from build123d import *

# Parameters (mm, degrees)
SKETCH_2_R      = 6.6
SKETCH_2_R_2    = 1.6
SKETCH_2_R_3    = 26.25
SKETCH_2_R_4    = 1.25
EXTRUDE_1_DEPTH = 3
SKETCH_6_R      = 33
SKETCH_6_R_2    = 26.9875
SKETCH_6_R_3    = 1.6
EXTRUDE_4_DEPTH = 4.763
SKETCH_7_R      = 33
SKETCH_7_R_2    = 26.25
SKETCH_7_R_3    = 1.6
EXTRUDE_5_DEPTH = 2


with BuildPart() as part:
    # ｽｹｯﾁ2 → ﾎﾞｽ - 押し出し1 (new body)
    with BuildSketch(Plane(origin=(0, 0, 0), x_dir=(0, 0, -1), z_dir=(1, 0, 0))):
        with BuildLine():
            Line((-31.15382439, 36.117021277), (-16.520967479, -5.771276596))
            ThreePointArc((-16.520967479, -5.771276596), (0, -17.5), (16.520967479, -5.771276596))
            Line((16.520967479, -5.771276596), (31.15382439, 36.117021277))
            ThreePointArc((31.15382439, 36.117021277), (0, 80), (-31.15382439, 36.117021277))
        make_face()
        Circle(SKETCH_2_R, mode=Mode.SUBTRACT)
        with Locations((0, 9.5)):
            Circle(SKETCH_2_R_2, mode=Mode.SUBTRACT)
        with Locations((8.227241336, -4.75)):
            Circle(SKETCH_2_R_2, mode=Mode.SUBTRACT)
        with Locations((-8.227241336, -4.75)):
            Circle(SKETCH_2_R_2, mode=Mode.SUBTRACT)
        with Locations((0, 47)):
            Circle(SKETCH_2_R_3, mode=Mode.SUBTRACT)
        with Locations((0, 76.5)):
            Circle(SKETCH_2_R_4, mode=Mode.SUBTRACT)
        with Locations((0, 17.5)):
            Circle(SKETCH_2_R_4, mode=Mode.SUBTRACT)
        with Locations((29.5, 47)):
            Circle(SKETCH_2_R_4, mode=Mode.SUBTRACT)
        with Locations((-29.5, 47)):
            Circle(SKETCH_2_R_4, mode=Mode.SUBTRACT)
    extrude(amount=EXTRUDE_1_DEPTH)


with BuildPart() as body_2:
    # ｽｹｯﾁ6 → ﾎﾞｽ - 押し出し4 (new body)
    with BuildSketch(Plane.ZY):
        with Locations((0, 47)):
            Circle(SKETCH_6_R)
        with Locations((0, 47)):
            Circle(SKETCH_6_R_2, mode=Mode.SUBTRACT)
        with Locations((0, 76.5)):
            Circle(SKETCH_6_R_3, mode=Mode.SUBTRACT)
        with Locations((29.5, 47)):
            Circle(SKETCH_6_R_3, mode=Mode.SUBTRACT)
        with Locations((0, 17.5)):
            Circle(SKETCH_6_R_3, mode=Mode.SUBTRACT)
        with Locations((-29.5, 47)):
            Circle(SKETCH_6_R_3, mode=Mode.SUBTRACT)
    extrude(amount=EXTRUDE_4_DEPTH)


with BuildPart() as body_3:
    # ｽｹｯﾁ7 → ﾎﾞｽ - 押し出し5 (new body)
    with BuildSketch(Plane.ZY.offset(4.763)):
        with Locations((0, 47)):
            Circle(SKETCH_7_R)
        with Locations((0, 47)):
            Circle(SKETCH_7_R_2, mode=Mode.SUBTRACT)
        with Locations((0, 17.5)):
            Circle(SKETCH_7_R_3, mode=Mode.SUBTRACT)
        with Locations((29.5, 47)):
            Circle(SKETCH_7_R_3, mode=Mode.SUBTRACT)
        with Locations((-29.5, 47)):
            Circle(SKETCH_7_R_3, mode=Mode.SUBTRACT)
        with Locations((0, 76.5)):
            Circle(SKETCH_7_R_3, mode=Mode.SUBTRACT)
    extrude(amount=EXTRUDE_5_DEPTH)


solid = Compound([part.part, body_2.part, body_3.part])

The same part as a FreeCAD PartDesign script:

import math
import FreeCAD as App
import Part
import Sketcher

V = App.Vector

doc = App.newDocument("Part")
body = doc.addObject("PartDesign::Body", "Body")

# Sketch on YZ plane
sketch1 = body.newObject("Sketcher::SketchObject", "Sketch")
sketch1.AttachmentSupport = (doc.getObject("YZ_Plane"), [""])
sketch1.MapMode = "FlatFace"
sketch1.addGeometry([
    Part.LineSegment(V(36.1, 31.2, 0), V(-5.8, 16.5, 0)),  # 0
    Part.ArcOfCircle(Part.Circle(V(0, 0, 0), V(0, 0, 1), 17.5), math.radians(109), math.radians(251)),  # 1
    Part.LineSegment(V(-5.8, -16.5, 0), V(36.1, -31.2, 0)),  # 2
    Part.ArcOfCircle(Part.Circle(V(47, 0, 0), V(0, 0, 1), 33), math.radians(-109), math.radians(109)),  # 3
    Part.Circle(V(-4.8, 8.2, 0), V(0, 0, 1), 1.6),  # 4
    Part.Circle(V(0, 0, 0), V(0, 0, 1), 6.6),  # 5
    Part.Circle(V(-4.8, -8.2, 0), V(0, 0, 1), 1.6),  # 6
    Part.Circle(V(9.5, 0, 0), V(0, 0, 1), 1.6),  # 7
    Part.Circle(V(17.5, 0, 0), V(0, 0, 1), 1.2),  # 8
    Part.Circle(V(47, 29.5, 0), V(0, 0, 1), 1.2),  # 9
    Part.Circle(V(47, 0, 0), V(0, 0, 1), 26.2),  # 10
    Part.Circle(V(47, -29.5, 0), V(0, 0, 1), 1.2),  # 11
    Part.Circle(V(76.5, 0, 0), V(0, 0, 1), 1.2),  # 12
], False)
sketch1.addConstraint([
    Sketcher.Constraint("Tangent", 0, 2, 1, 1),
    Sketcher.Constraint("Tangent", 1, 2, 2, 1),
    Sketcher.Constraint("Tangent", 2, 2, 3, 1),
    Sketcher.Constraint("Tangent", 3, 2, 0, 1),
    Sketcher.Constraint("Coincident", 1, 3, -1, 1),
    Sketcher.Constraint("Coincident", 5, 3, -1, 1),
    Sketcher.Constraint("Coincident", 10, 3, 3, 3),
    Sketcher.Constraint("Equal", 4, 6),
    Sketcher.Constraint("Equal", 6, 7),
    Sketcher.Constraint("Equal", 8, 9),
    Sketcher.Constraint("Equal", 9, 11),
    Sketcher.Constraint("Equal", 11, 12),
    Sketcher.Constraint("Symmetric", 4, 3, 6, 3, -1),
    Sketcher.Constraint("Symmetric", 9, 3, 11, 3, -1),
    Sketcher.Constraint("PointOnObject", 3, 3, -1),
    Sketcher.Constraint("PointOnObject", 7, 3, -1),
    Sketcher.Constraint("PointOnObject", 8, 3, -1),
    Sketcher.Constraint("PointOnObject", 12, 3, -1),
    Sketcher.Constraint("Vertical", 3, 3, 9, 3),
    Sketcher.Constraint("Radius", 3, 33.0),
    Sketcher.Constraint("Diameter", 4, 3.2),
    Sketcher.Constraint("Diameter", 5, 13.2),
    Sketcher.Constraint("Diameter", 8, 2.5),
    Sketcher.Constraint("Diameter", 10, 52.5),
    Sketcher.Constraint("Radius", 1, 17.5),
    Sketcher.Constraint("DistanceX", -1, 1, 3, 3, 47.0),
    Sketcher.Constraint("DistanceX", 7, 3, 8, 3, 8.0),
    Sketcher.Constraint("DistanceX", 8, 3, 12, 3, 59.0),
    Sketcher.Constraint("DistanceX", -1, 1, 7, 3, 9.5),
    Sketcher.Constraint("DistanceY", -1, 1, 9, 3, 29.5),
    Sketcher.Constraint("DistanceX", 4, 3, -1, 1, 4.75),
    Sketcher.Constraint("DistanceY", -1, 1, 4, 3, 8.227241),
])
pad1 = body.newObject("PartDesign::Pad", "Pad")
pad1.Profile = sketch1
pad1.Length = 3
body2 = doc.addObject("PartDesign::Body", "Body001")

# Sketch on YZ plane
sketch2 = body2.newObject("Sketcher::SketchObject", "Sketch001")
sketch2.AttachmentSupport = (doc.getObject("YZ_Plane001"), [""])
sketch2.MapMode = "FlatFace"
sketch2.addGeometry([
    Part.Circle(V(47, 0, 0), V(0, 0, 1), 33),  # 0
    Part.Circle(V(17.5, 0, 0), V(0, 0, 1), 1.6),  # 1
    Part.Circle(V(47, -29.5, 0), V(0, 0, 1), 1.6),  # 2
    Part.Circle(V(47, 0, 0), V(0, 0, 1), 27),  # 3
    Part.Circle(V(47, 29.5, 0), V(0, 0, 1), 1.6),  # 4
    Part.Circle(V(76.5, 0, 0), V(0, 0, 1), 1.6),  # 5
], False)
sketch2.addConstraint([
    Sketcher.Constraint("Coincident", 3, 3, 0, 3),
    Sketcher.Constraint("Equal", 1, 2),
    Sketcher.Constraint("Equal", 2, 4),
    Sketcher.Constraint("Equal", 4, 5),
    Sketcher.Constraint("Symmetric", 2, 3, 4, 3, -1),
    Sketcher.Constraint("PointOnObject", 0, 3, -1),
    Sketcher.Constraint("PointOnObject", 1, 3, -1),
    Sketcher.Constraint("PointOnObject", 5, 3, -1),
    Sketcher.Constraint("Vertical", 0, 3, 2, 3),
    Sketcher.Constraint("Diameter", 0, 66.0),
    Sketcher.Constraint("Diameter", 1, 3.2),
    Sketcher.Constraint("Diameter", 3, 53.975),
    Sketcher.Constraint("DistanceX", -1, 1, 0, 3, 47.0),
    Sketcher.Constraint("DistanceY", 2, 3, 4, 3, 59.0),
    Sketcher.Constraint("DistanceX", 1, 3, 5, 3, 59.0),
    Sketcher.Constraint("DistanceX", -1, 1, 1, 3, 17.5),
])
pad2 = body2.newObject("PartDesign::Pad", "Pad001")
pad2.Profile = sketch2
pad2.Length = 4.763
pad2.Reversed = True
body3 = doc.addObject("PartDesign::Body", "Body002")

# Sketch on YZ plane
sketch3 = body3.newObject("Sketcher::SketchObject", "Sketch002")
sketch3.AttachmentSupport = (doc.getObject("YZ_Plane002"), [""])
sketch3.MapMode = "FlatFace"
sketch3.AttachmentOffset = App.Placement(V(0, 0, -4.763), App.Rotation())
sketch3.addGeometry([
    Part.Circle(V(47, 0, 0), V(0, 0, 1), 33),  # 0
    Part.Circle(V(17.5, 0, 0), V(0, 0, 1), 1.6),  # 1
    Part.Circle(V(47, -29.5, 0), V(0, 0, 1), 1.6),  # 2
    Part.Circle(V(47, 0, 0), V(0, 0, 1), 26.2),  # 3
    Part.Circle(V(47, 29.5, 0), V(0, 0, 1), 1.6),  # 4
    Part.Circle(V(76.5, 0, 0), V(0, 0, 1), 1.6),  # 5
], False)
sketch3.addConstraint([
    Sketcher.Constraint("Coincident", 3, 3, 0, 3),
    Sketcher.Constraint("Equal", 1, 2),
    Sketcher.Constraint("Equal", 2, 4),
    Sketcher.Constraint("Equal", 4, 5),
    Sketcher.Constraint("Symmetric", 2, 3, 4, 3, -1),
    Sketcher.Constraint("PointOnObject", 0, 3, -1),
    Sketcher.Constraint("PointOnObject", 1, 3, -1),
    Sketcher.Constraint("PointOnObject", 5, 3, -1),
    Sketcher.Constraint("Vertical", 0, 3, 2, 3),
    Sketcher.Constraint("Diameter", 0, 66.0),
    Sketcher.Constraint("Diameter", 1, 3.2),
    Sketcher.Constraint("Diameter", 3, 52.5),
    Sketcher.Constraint("DistanceX", -1, 1, 0, 3, 47.0),
    Sketcher.Constraint("DistanceY", 2, 3, 4, 3, 59.0),
    Sketcher.Constraint("DistanceX", 1, 3, 5, 3, 59.0),
    Sketcher.Constraint("DistanceX", -1, 1, 1, 3, 17.5),
])
pad3 = body3.newObject("PartDesign::Pad", "Pad002")
pad3.Profile = sketch3
pad3.Length = 2
pad3.Reversed = True

doc.recompute()
